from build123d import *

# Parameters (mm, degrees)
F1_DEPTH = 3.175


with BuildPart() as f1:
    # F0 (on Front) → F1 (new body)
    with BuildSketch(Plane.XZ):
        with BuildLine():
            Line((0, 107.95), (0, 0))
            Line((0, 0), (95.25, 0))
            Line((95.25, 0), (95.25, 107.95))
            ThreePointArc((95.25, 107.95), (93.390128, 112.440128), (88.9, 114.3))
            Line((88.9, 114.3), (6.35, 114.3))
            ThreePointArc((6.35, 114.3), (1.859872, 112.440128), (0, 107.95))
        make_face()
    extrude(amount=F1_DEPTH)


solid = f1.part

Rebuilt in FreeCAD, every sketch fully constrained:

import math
import FreeCAD as App
import Part
import Sketcher

V = App.Vector
Q = App.Units.Quantity

doc = App.newDocument("Part")
body = doc.addObject("PartDesign::Body", "Body")

# Sketch on XZ plane
sketch1 = body.newObject("Sketcher::SketchObject", "Sketch")
sketch1.AttachmentSupport = (doc.getObject("XZ_Plane"), [""])
sketch1.MapMode = "FlatFace"
sketch1.addGeometry([
    Part.LineSegment(V(0, 108, 0), V(0, 0, 0)),  # 0
    Part.LineSegment(V(0, 0, 0), V(95, 0, 0)),  # 1
    Part.LineSegment(V(95, 0, 0), V(95, 108, 0)),  # 2
    Part.ArcOfCircle(Part.Circle(V(89, 108, 0), V(0, 0, 1), 6), math.radians(0), math.radians(90)),  # 3
    Part.LineSegment(V(89, 114, 0), V(6, 114, 0)),  # 4
    Part.ArcOfCircle(Part.Circle(V(6, 108, 0), V(0, 0, 1), 6), math.radians(90), math.radians(180)),  # 5
], False)
sketch1.addConstraint([
    Sketcher.Constraint("Coincident", 0, 2, 1, 1),
    Sketcher.Constraint("Coincident", 1, 2, 2, 1),
    Sketcher.Constraint("Tangent", 2, 2, 3, 1),
    Sketcher.Constraint("Tangent", 3, 2, 4, 1),
    Sketcher.Constraint("Tangent", 4, 2, 5, 1),
    Sketcher.Constraint("Tangent", 5, 2, 0, 1),
    Sketcher.Constraint("Vertical", 0),
    Sketcher.Constraint("Horizontal", 1),
    Sketcher.Constraint("Vertical", 2),
    Sketcher.Constraint("Horizontal", 4),
    Sketcher.Constraint("Coincident", 0, 2, -1, 1),
    Sketcher.Constraint("Equal", 3, 5),
    Sketcher.Constraint("Radius", 3, Q("0.25 in")),
    Sketcher.Constraint("DistanceX", 1, 1, 1, 2, Q("3.75 in")),
    Sketcher.Constraint("DistanceY", 0, 2, 0, 1, Q("4.25 in")),
])
pad1 = body.newObject("PartDesign::Pad", "Pad")
pad1.Profile = sketch1
pad1.Length = Q("0.125 in")

doc.recompute()
